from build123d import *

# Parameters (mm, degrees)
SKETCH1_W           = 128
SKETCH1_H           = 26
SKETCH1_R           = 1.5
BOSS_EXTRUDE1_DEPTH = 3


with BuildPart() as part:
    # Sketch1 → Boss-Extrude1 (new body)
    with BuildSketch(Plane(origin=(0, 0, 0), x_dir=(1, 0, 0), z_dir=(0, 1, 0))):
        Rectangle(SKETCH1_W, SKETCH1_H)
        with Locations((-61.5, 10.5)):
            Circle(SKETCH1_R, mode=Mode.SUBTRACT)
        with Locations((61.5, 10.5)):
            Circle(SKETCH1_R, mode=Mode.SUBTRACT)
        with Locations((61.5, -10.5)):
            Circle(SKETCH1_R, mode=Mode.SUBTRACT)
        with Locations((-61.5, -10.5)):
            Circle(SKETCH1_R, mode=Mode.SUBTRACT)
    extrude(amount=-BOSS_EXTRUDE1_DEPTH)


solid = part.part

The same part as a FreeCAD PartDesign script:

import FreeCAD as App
import Part
import Sketcher
from FreeCAD import Vector

doc = App.newDocument("Part")
body = doc.addObject("PartDesign::Body", "Body")

# Sketch on XZ plane
sketch1 = body.newObject("Sketcher::SketchObject", "Sketch")
sketch1.AttachmentSupport = (doc.getObject("XZ_Plane"), [""])
sketch1.MapMode = "FlatFace"
sketch1.addGeometry([
    Part.LineSegment(Vector(-64, -13, 0), Vector(-64, 13, 0)),  # 0
    Part.LineSegment(Vector(-64, 13, 0), Vector(64, 13, 0)),  # 1
    Part.LineSegment(Vector(64, 13, 0), Vector(64, -13, 0)),  # 2
    Part.LineSegment(Vector(64, -13, 0), Vector(-64, -13, 0)),  # 3
    Part.Circle(Vector(-61.5, 10.5, 0), Vector(0, 0, 1), 1.5),  # 4
    Part.Circle(Vector(61.5, 10.5, 0), Vector(0, 0, 1), 1.5),  # 5
    Part.Circle(Vector(-61.5, -10.5, 0), Vector(0, 0, 1), 1.5),  # 6
    Part.Circle(Vector(61.5, -10.5, 0), Vector(0, 0, 1), 1.5),  # 7
], False)
sketch1.addConstraint([
    Sketcher.Constraint("Coincident", 0, 2, 1, 1),
    Sketcher.Constraint("Coincident", 1, 2, 2, 1),
    Sketcher.Constraint("Coincident", 2, 2, 3, 1),
    Sketcher.Constraint("Coincident", 3, 2, 0, 1),
    Sketcher.Constraint("Vertical", 0),
    Sketcher.Constraint("Horizontal", 1),
    Sketcher.Constraint("Vertical", 2),
    Sketcher.Constraint("Horizontal", 3),
    Sketcher.Constraint("Equal", 4, 5),
    Sketcher.Constraint("Equal", 5, 6),
    Sketcher.Constraint("Equal", 6, 7),
    Sketcher.Constraint("Symmetric", 5, 3, 6, 3, -1, 1),
    Sketcher.Constraint("Symmetric", 4, 3, 7, 3, -1, 1),
    Sketcher.Constraint("Symmetric", 0, 2, 2, 2, -1, 1),
    Sketcher.Constraint("Symmetric", 4, 3, 5, 3, -2),
    Sketcher.Constraint("Diameter", 4, 3.0),
    Sketcher.Constraint("DistanceX", 1, 1, 1, 2, 128.0),
    Sketcher.Constraint("DistanceY", 0, 1, 0, 2, 26.0),
    Sketcher.Constraint("DistanceX", 4, 3, 5, 3, 123.0),
    Sketcher.Constraint("DistanceY", 6, 3, 4, 3, 21.0),
])
pad1 = body.newObject("PartDesign::Pad", "Pad")
pad1.Profile = sketch1
pad1.Length = 3

doc.recompute()
